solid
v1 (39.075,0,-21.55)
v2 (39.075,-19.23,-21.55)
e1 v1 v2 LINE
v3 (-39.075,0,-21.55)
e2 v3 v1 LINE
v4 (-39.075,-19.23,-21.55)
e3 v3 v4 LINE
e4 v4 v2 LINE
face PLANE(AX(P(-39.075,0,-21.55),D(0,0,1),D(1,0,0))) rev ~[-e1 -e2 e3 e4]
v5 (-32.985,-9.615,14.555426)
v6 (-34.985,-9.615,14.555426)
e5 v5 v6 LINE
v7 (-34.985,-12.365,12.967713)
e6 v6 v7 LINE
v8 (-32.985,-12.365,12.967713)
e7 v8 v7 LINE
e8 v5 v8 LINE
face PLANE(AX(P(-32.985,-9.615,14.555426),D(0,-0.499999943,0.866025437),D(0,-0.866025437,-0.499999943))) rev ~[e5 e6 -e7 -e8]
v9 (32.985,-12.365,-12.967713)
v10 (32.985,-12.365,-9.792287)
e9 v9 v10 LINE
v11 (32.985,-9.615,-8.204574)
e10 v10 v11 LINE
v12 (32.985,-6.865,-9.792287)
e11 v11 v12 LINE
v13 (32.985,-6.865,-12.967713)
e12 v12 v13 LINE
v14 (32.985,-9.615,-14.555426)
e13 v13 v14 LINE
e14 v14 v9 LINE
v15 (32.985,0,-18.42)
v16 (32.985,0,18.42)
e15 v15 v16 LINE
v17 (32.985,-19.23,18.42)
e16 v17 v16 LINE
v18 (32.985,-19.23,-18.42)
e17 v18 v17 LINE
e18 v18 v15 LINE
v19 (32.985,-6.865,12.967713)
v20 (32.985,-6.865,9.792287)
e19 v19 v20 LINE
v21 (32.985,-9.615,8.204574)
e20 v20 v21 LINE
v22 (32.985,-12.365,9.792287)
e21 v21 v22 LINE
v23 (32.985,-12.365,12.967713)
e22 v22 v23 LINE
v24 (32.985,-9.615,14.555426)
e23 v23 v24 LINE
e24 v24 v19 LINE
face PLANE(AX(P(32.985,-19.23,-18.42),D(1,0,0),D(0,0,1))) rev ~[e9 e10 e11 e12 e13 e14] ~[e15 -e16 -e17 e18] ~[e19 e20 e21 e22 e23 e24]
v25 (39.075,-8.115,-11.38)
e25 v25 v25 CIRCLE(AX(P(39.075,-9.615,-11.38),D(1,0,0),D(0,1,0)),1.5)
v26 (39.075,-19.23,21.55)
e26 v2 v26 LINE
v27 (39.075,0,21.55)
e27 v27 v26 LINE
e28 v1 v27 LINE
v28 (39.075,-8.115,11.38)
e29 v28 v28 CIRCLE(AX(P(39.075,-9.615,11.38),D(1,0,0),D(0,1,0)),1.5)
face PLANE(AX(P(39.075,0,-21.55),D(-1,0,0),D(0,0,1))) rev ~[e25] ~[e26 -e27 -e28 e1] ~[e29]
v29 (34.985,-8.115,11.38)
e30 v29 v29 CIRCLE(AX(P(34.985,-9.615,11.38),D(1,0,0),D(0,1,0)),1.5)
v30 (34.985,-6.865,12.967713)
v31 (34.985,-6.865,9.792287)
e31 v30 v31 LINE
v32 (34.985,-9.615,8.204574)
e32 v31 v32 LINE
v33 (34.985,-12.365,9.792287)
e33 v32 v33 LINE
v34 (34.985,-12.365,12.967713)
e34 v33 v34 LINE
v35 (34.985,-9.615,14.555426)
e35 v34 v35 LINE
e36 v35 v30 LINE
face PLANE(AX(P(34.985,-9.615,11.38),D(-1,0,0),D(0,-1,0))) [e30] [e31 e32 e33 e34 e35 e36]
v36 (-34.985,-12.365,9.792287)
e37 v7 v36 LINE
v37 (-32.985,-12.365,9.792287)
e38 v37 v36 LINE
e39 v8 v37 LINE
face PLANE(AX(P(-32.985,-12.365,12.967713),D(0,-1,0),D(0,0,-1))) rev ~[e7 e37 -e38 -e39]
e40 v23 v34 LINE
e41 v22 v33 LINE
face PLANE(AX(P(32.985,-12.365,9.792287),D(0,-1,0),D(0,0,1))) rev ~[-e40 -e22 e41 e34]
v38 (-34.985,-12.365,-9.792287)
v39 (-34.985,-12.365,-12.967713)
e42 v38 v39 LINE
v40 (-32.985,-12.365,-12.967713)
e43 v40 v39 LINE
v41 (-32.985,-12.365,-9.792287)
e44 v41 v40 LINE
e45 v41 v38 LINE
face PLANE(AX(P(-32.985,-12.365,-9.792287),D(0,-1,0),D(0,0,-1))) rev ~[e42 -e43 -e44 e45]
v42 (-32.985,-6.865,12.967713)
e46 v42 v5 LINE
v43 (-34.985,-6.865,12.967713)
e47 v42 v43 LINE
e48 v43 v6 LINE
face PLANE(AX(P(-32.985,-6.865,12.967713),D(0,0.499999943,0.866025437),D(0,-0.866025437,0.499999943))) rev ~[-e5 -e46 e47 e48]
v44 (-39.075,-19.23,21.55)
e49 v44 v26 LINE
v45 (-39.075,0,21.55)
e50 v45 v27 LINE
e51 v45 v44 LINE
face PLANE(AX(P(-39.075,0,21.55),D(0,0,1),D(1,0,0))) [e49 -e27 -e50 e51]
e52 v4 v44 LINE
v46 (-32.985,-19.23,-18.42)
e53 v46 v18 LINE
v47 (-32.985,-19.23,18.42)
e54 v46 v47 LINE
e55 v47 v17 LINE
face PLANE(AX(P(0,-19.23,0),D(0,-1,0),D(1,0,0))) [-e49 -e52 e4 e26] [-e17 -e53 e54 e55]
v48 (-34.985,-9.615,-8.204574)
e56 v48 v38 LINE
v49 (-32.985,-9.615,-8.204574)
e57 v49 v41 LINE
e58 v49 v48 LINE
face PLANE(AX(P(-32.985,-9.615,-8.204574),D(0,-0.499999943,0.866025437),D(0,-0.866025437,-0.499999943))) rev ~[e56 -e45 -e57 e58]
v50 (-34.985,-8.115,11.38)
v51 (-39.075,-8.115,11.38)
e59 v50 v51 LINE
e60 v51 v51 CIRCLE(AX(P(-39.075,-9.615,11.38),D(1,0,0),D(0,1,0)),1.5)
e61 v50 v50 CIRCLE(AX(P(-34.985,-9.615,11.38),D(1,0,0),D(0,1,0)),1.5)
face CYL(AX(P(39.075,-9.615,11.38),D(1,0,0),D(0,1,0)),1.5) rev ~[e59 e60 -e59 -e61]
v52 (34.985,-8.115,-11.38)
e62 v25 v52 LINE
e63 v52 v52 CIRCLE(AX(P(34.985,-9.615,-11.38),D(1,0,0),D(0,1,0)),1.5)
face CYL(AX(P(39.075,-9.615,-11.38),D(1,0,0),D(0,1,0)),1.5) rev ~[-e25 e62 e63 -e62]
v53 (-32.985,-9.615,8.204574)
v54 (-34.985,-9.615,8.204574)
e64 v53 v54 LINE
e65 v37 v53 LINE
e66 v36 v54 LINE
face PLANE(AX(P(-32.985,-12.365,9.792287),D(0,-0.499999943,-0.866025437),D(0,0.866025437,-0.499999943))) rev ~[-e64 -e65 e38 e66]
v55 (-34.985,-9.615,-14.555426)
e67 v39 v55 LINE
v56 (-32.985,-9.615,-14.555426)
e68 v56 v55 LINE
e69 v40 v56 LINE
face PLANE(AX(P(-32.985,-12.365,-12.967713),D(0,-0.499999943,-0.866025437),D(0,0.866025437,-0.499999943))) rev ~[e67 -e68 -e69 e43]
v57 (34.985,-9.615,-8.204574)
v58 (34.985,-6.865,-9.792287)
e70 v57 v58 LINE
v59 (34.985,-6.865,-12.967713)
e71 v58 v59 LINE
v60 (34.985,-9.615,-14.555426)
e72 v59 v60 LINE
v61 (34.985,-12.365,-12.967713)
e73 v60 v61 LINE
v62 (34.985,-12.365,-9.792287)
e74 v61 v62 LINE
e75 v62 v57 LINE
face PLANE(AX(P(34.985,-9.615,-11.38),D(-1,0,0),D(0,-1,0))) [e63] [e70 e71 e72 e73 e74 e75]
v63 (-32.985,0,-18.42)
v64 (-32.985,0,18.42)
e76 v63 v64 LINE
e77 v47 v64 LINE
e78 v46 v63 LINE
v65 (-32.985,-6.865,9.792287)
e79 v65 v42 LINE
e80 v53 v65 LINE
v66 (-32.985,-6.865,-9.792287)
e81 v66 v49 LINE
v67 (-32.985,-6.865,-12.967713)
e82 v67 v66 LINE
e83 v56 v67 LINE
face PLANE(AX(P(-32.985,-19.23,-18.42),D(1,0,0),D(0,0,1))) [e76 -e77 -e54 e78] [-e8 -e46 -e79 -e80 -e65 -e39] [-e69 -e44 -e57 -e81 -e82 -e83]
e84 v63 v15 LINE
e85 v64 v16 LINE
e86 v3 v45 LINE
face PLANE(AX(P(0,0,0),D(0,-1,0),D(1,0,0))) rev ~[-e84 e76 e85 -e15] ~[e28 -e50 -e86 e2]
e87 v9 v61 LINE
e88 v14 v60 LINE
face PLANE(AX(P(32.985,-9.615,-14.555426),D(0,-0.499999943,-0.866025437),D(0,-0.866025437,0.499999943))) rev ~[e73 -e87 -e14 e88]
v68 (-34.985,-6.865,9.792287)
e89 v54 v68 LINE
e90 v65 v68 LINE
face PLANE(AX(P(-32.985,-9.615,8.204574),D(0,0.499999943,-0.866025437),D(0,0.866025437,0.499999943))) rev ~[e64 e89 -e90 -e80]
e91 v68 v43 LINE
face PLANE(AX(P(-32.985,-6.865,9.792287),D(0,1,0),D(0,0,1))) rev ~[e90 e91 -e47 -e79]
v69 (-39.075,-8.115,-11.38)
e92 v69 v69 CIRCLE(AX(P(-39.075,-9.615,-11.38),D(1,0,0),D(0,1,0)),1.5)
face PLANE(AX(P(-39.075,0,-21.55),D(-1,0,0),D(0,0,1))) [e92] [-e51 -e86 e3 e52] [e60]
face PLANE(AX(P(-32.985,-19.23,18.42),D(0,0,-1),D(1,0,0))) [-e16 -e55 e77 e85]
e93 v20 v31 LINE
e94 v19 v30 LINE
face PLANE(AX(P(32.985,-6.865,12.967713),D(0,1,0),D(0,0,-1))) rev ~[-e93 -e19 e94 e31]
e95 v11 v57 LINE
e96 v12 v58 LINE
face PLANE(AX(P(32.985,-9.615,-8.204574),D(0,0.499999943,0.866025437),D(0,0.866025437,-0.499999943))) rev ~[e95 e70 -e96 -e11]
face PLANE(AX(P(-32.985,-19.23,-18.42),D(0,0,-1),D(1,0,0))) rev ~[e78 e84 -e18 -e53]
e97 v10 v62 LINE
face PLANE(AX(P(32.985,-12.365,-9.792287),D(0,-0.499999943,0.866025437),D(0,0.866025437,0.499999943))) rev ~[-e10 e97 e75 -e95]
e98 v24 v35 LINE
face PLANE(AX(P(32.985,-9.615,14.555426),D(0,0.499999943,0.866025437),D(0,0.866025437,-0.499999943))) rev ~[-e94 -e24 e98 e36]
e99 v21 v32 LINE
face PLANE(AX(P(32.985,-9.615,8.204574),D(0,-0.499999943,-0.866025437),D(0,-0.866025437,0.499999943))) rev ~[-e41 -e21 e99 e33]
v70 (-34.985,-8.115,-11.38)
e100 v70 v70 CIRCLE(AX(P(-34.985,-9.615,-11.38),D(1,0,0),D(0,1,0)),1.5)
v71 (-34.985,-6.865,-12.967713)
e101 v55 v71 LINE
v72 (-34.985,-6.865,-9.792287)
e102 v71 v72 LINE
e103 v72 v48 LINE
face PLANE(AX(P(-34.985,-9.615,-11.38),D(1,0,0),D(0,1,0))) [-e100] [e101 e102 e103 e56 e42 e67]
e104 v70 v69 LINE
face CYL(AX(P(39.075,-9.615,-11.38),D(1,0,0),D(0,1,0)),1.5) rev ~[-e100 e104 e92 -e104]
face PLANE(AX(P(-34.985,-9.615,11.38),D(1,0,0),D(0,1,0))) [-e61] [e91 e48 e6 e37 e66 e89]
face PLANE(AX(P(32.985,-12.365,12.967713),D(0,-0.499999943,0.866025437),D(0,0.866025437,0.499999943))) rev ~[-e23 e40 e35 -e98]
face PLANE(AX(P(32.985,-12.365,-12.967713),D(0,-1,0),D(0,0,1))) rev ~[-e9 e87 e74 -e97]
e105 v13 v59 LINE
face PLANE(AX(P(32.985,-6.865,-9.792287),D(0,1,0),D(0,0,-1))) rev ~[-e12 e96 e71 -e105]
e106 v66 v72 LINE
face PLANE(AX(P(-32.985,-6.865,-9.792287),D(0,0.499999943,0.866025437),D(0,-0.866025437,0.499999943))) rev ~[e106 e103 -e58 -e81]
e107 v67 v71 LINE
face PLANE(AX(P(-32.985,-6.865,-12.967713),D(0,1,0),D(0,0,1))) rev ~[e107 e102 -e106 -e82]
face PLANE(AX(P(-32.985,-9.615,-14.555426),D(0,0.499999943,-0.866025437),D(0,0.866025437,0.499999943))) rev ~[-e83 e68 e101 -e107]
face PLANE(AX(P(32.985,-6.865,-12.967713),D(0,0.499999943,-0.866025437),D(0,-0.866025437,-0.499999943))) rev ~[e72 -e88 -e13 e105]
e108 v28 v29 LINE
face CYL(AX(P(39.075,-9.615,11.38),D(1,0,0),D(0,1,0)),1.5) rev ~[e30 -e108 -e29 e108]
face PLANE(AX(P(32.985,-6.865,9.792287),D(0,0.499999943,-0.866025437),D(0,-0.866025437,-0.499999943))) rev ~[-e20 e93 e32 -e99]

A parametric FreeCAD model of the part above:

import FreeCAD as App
import Part
import Sketcher

V = App.Vector
Q = App.Units.Quantity


def add_polygon(sketch, points):
    """Adds a closed chain of lines whose ends are joined by coincident constraints."""
    first, n = sketch.GeometryCount, len(points)
    for a, b in zip(points, points[1:] + points[:1]):
        sketch.addGeometry(Part.LineSegment(App.Vector(*a, 0), App.Vector(*b, 0)), False)
    for i in range(n):
        sketch.addConstraint(Sketcher.Constraint("Coincident", first + i, 2, first + (i + 1) % n, 1))

doc = App.newDocument("Part")
body = doc.addObject("PartDesign::Body", "Body")

sketch1 = body.newObject("Sketcher::SketchObject", "Sketch")
sketch1.AttachmentSupport = (doc.getObject("XZ_Plane"), [""])
sketch1.MapMode = "FlatFace"
add_polygon(sketch1, [(-39.075, 21.55), (-39.075, -21.55), (39.075, -21.55), (39.075, 21.55)])
sketch1.addConstraint(Sketcher.Constraint("Vertical", 0))
sketch1.addConstraint(Sketcher.Constraint("Horizontal", 1))
sketch1.addConstraint(Sketcher.Constraint("Vertical", 2))
sketch1.addConstraint(Sketcher.Constraint("Horizontal", 3))
sketch1.addConstraint(Sketcher.Constraint("Symmetric", 0, 2, 2, 2, -1, 1))
sketch1.addConstraint(Sketcher.Constraint("DistanceY", 0, 2, 0, 1, 43.1))
sketch1.addConstraint(Sketcher.Constraint("DistanceX", 1, 1, 1, 2, 78.15))
pad1 = body.newObject("PartDesign::Pad", "Pad")
pad1.Profile = sketch1
pad1.Length = 19.23

sketch2 = body.newObject("Sketcher::SketchObject", "Sketch001")
sketch2.AttachmentSupport = (doc.getObject("XZ_Plane"), [""])
sketch2.MapMode = "FlatFace"
sketch2.AttachmentOffset = App.Placement(V(0, 0, 19.23), App.Rotation())
add_polygon(sketch2, [(-32.985, 18.42), (-32.985, -18.42), (32.985, -18.42), (32.985, 18.42)])
sketch2.addConstraint(Sketcher.Constraint("Vertical", 0))
sketch2.addConstraint(Sketcher.Constraint("Horizontal", 1))
sketch2.addConstraint(Sketcher.Constraint("Vertical", 2))
sketch2.addConstraint(Sketcher.Constraint("Horizontal", 3))
sketch2.addConstraint(Sketcher.Constraint("Symmetric", 0, 2, 2, 2, -1, 1))
sketch2.addConstraint(Sketcher.Constraint("DistanceX", 1, 1, 1, 2, 65.97))
sketch2.addConstraint(Sketcher.Constraint("DistanceY", 0, 2, 0, 1, 36.84))
pocket1 = body.newObject("PartDesign::Pocket", "Pocket")
pocket1.Profile = sketch2
pocket1.Length = 35

sketch3 = body.newObject("Sketcher::SketchObject", "Sketch002")
sketch3.AttachmentSupport = (doc.getObject("YZ_Plane"), [""])
sketch3.MapMode = "FlatFace"
sketch3.AttachmentOffset = App.Placement(V(0, 0, 39.075), App.Rotation())
sketch3.addGeometry(Part.Circle(V(-9.615, 11.38, 0), V(0, 0, 1), 1.5), False)
sketch3.addGeometry(Part.Circle(V(-9.615, -11.38, 0), V(0, 0, 1), 1.5), False)
sketch3.addConstraint(Sketcher.Constraint("Equal", 0, 1))
sketch3.addConstraint(Sketcher.Constraint("Symmetric", 0, 3, 1, 3, -1))
sketch3.addConstraint(Sketcher.Constraint("Diameter", 0, 3.0))
sketch3.addConstraint(Sketcher.Constraint("DistanceY", -1, 1, 0, 3, 11.38))
sketch3.addConstraint(Sketcher.Constraint("DistanceX", 0, 3, -1, 1, 9.615))
pocket2 = body.newObject("PartDesign::Pocket", "Pocket001")
pocket2.Profile = sketch3
pocket2.Length = 100000

sketch4 = body.newObject("Sketcher::SketchObject", "Sketch003")
sketch4.AttachmentSupport = (doc.getObject("YZ_Plane"), [""])
sketch4.MapMode = "FlatFace"
sketch4.AttachmentOffset = App.Placement(V(0, 0, 32.985), App.Rotation())
add_polygon(sketch4, [(-12.365, 9.792287), (-12.365, 12.967713), (-9.615, 14.555426), (-6.865, 12.967713), (-6.865, 9.792287), (-9.615, 8.204574)])
add_polygon(sketch4, [(-6.865, -12.967713), (-9.615, -14.555426), (-12.365, -12.967713), (-12.365, -9.792287), (-9.615, -8.204574), (-6.865, -9.792287)])
sketch4.addConstraint(Sketcher.Constraint("Vertical", 0))
sketch4.addConstraint(Sketcher.Constraint("Vertical", 3))
sketch4.addConstraint(Sketcher.Constraint("Vertical", 8))
sketch4.addConstraint(Sketcher.Constraint("Vertical", 11))
sketch4.addConstraint(Sketcher.Constraint("Symmetric", 1, 2, 6, 2, -1))
sketch4.addConstraint(Sketcher.Constraint("Symmetric", 0, 2, 7, 2, -1))
sketch4.addConstraint(Sketcher.Constraint("Symmetric", 4, 2, 9, 2, -1))
sketch4.addConstraint(Sketcher.Constraint("Symmetric", 3, 2, 10, 2, -1))
sketch4.addConstraint(Sketcher.Constraint("Parallel", 1, 4))
sketch4.addConstraint(Sketcher.Constraint("Parallel", 2, 5))
sketch4.addConstraint(Sketcher.Constraint("Parallel", 4, 6))
sketch4.addConstraint(Sketcher.Constraint("Parallel", 5, 7))
sketch4.addConstraint(Sketcher.Constraint("Parallel", 6, 9))
sketch4.addConstraint(Sketcher.Constraint("Horizontal", 0, 2, 2, 2))
sketch4.addConstraint(Sketcher.Constraint("Horizontal", 3, 2, 5, 2))
sketch4.addConstraint(Sketcher.Constraint("Angle", 1, Q("29.999996 deg")))
sketch4.addConstraint(Sketcher.Constraint("DistanceX", 0, 2, 2, 2, 5.5))
sketch4.addConstraint(Sketcher.Constraint("DistanceY", 6, 2, 4, 2, 22.76))
sketch4.addConstraint(Sketcher.Constraint("DistanceX", 0, 2, -1, 1, 12.365))
sketch4.addConstraint(Sketcher.Constraint("DistanceY", 0, 1, 0, 2, 3.175426))
pocket3 = body.newObject("PartDesign::Pocket", "Pocket002")
pocket3.Profile = sketch4
pocket3.Length = 2
pocket3.Reversed = True

sketch5 = body.newObject("Sketcher::SketchObject", "Sketch004")
sketch5.AttachmentSupport = (doc.getObject("YZ_Plane"), [""])
sketch5.MapMode = "FlatFace"
sketch5.AttachmentOffset = App.Placement(V(0, 0, -32.985), App.Rotation())
add_polygon(sketch5, [(-6.865, 9.792287), (-6.865, 12.967713), (-9.615, 14.555426), (-12.365, 12.967713), (-12.365, 9.792287), (-9.615, 8.204574)])
add_polygon(sketch5, [(-12.365, -12.967713), (-9.615, -14.555426), (-6.865, -12.967713), (-6.865, -9.792287), (-9.615, -8.204574), (-12.365, -9.792287)])
sketch5.addConstraint(Sketcher.Constraint("Vertical", 0))
sketch5.addConstraint(Sketcher.Constraint("Vertical", 3))
sketch5.addConstraint(Sketcher.Constraint("Vertical", 8))
sketch5.addConstraint(Sketcher.Constraint("Vertical", 11))
sketch5.addConstraint(Sketcher.Constraint("Symmetric", 1, 2, 6, 2, -1))
sketch5.addConstraint(Sketcher.Constraint("Symmetric", 0, 2, 7, 2, -1))
sketch5.addConstraint(Sketcher.Constraint("Symmetric", 4, 2, 9, 2, -1))
sketch5.addConstraint(Sketcher.Constraint("Symmetric", 3, 2, 10, 2, -1))
sketch5.addConstraint(Sketcher.Constraint("Parallel", 1, 4))
sketch5.addConstraint(Sketcher.Constraint("Parallel", 2, 5))
sketch5.addConstraint(Sketcher.Constraint("Parallel", 4, 6))
sketch5.addConstraint(Sketcher.Constraint("Parallel", 5, 7))
sketch5.addConstraint(Sketcher.Constraint("Parallel", 6, 9))
sketch5.addConstraint(Sketcher.Constraint("Horizontal", 0, 2, 2, 2))
sketch5.addConstraint(Sketcher.Constraint("Horizontal", 3, 2, 5, 2))
sketch5.addConstraint(Sketcher.Constraint("Angle", 1, Q("150.000004 deg")))
sketch5.addConstraint(Sketcher.Constraint("DistanceX", 2, 2, 0, 2, 5.5))
sketch5.addConstraint(Sketcher.Constraint("DistanceY", 6, 2, 4, 2, 22.76))
sketch5.addConstraint(Sketcher.Constraint("DistanceX", 0, 2, -1, 1, 6.865))
sketch5.addConstraint(Sketcher.Constraint("DistanceY", 0, 1, 0, 2, 3.175426))
pocket4 = body.newObject("PartDesign::Pocket", "Pocket003")
pocket4.Profile = sketch5
pocket4.Length = 2

doc.recompute()
